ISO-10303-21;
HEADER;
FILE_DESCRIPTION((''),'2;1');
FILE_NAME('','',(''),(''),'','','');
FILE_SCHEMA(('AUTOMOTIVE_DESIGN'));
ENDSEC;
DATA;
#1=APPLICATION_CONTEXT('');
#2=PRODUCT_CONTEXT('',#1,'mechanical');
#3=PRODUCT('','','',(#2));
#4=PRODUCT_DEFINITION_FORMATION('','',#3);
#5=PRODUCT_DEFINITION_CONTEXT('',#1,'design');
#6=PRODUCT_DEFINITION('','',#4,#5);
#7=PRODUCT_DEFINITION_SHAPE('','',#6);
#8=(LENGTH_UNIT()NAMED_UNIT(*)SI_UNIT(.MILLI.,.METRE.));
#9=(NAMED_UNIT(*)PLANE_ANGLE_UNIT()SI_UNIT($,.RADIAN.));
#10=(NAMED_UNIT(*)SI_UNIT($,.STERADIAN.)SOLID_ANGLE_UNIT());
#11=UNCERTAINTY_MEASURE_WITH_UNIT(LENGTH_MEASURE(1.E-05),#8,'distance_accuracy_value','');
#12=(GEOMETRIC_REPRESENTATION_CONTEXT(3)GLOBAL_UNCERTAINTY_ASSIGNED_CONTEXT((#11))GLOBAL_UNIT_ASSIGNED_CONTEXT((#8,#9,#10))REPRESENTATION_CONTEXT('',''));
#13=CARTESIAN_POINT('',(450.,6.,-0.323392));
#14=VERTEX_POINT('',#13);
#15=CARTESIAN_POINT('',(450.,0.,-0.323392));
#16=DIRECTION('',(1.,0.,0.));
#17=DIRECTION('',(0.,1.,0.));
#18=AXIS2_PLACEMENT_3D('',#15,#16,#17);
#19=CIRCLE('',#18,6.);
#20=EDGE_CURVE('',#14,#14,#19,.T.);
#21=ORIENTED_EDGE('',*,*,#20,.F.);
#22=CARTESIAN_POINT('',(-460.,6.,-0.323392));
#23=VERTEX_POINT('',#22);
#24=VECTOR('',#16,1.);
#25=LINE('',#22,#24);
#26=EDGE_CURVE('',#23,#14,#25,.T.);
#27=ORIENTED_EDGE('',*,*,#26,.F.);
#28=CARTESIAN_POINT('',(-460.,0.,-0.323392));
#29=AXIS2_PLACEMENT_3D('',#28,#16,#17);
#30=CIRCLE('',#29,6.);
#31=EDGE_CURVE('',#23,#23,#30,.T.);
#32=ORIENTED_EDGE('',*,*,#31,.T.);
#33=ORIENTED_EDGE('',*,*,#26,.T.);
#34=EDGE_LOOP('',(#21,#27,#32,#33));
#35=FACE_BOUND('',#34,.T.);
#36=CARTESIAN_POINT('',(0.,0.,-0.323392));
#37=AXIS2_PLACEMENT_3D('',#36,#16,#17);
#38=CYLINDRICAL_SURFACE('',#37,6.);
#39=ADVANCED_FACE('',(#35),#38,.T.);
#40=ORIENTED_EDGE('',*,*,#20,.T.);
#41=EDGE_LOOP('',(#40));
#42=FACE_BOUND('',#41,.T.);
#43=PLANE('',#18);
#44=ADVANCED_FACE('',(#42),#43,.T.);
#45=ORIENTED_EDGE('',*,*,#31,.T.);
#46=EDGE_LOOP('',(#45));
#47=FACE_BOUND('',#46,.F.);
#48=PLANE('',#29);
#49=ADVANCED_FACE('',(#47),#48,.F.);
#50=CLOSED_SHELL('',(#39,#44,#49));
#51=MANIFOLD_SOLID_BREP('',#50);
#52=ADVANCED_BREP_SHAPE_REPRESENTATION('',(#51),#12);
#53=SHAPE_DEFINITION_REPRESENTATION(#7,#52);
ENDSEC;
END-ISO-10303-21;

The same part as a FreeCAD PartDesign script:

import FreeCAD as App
import Part
import Sketcher
from FreeCAD import Vector
Q = App.Units.Quantity

doc = App.newDocument("Part")
body = doc.addObject("PartDesign::Body", "Body")

# Sketch on YZ plane
sketch1 = body.newObject("Sketcher::SketchObject", "Sketch")
sketch1.AttachmentSupport = (doc.getObject("YZ_Plane"), [""])
sketch1.MapMode = "FlatFace"
sketch1.addGeometry(Part.Circle(Vector(0, 0, 0), Vector(0, 0, 1), 6), False)
sketch1.addConstraint([
    Sketcher.Constraint("PointOnObject", 0, 3, -2),
    Sketcher.Constraint("Diameter", 0, Q("12 mm")),
    Sketcher.Constraint("DistanceY", 0, 3, -1, 1, Q("0.323392 mm")),
])
pad1 = body.newObject("PartDesign::Pad", "Pad")
pad1.Profile = sketch1
pad1.Type = "TwoLengths"
pad1.Length = 450
pad1.Length2 = 460

doc.recompute()
